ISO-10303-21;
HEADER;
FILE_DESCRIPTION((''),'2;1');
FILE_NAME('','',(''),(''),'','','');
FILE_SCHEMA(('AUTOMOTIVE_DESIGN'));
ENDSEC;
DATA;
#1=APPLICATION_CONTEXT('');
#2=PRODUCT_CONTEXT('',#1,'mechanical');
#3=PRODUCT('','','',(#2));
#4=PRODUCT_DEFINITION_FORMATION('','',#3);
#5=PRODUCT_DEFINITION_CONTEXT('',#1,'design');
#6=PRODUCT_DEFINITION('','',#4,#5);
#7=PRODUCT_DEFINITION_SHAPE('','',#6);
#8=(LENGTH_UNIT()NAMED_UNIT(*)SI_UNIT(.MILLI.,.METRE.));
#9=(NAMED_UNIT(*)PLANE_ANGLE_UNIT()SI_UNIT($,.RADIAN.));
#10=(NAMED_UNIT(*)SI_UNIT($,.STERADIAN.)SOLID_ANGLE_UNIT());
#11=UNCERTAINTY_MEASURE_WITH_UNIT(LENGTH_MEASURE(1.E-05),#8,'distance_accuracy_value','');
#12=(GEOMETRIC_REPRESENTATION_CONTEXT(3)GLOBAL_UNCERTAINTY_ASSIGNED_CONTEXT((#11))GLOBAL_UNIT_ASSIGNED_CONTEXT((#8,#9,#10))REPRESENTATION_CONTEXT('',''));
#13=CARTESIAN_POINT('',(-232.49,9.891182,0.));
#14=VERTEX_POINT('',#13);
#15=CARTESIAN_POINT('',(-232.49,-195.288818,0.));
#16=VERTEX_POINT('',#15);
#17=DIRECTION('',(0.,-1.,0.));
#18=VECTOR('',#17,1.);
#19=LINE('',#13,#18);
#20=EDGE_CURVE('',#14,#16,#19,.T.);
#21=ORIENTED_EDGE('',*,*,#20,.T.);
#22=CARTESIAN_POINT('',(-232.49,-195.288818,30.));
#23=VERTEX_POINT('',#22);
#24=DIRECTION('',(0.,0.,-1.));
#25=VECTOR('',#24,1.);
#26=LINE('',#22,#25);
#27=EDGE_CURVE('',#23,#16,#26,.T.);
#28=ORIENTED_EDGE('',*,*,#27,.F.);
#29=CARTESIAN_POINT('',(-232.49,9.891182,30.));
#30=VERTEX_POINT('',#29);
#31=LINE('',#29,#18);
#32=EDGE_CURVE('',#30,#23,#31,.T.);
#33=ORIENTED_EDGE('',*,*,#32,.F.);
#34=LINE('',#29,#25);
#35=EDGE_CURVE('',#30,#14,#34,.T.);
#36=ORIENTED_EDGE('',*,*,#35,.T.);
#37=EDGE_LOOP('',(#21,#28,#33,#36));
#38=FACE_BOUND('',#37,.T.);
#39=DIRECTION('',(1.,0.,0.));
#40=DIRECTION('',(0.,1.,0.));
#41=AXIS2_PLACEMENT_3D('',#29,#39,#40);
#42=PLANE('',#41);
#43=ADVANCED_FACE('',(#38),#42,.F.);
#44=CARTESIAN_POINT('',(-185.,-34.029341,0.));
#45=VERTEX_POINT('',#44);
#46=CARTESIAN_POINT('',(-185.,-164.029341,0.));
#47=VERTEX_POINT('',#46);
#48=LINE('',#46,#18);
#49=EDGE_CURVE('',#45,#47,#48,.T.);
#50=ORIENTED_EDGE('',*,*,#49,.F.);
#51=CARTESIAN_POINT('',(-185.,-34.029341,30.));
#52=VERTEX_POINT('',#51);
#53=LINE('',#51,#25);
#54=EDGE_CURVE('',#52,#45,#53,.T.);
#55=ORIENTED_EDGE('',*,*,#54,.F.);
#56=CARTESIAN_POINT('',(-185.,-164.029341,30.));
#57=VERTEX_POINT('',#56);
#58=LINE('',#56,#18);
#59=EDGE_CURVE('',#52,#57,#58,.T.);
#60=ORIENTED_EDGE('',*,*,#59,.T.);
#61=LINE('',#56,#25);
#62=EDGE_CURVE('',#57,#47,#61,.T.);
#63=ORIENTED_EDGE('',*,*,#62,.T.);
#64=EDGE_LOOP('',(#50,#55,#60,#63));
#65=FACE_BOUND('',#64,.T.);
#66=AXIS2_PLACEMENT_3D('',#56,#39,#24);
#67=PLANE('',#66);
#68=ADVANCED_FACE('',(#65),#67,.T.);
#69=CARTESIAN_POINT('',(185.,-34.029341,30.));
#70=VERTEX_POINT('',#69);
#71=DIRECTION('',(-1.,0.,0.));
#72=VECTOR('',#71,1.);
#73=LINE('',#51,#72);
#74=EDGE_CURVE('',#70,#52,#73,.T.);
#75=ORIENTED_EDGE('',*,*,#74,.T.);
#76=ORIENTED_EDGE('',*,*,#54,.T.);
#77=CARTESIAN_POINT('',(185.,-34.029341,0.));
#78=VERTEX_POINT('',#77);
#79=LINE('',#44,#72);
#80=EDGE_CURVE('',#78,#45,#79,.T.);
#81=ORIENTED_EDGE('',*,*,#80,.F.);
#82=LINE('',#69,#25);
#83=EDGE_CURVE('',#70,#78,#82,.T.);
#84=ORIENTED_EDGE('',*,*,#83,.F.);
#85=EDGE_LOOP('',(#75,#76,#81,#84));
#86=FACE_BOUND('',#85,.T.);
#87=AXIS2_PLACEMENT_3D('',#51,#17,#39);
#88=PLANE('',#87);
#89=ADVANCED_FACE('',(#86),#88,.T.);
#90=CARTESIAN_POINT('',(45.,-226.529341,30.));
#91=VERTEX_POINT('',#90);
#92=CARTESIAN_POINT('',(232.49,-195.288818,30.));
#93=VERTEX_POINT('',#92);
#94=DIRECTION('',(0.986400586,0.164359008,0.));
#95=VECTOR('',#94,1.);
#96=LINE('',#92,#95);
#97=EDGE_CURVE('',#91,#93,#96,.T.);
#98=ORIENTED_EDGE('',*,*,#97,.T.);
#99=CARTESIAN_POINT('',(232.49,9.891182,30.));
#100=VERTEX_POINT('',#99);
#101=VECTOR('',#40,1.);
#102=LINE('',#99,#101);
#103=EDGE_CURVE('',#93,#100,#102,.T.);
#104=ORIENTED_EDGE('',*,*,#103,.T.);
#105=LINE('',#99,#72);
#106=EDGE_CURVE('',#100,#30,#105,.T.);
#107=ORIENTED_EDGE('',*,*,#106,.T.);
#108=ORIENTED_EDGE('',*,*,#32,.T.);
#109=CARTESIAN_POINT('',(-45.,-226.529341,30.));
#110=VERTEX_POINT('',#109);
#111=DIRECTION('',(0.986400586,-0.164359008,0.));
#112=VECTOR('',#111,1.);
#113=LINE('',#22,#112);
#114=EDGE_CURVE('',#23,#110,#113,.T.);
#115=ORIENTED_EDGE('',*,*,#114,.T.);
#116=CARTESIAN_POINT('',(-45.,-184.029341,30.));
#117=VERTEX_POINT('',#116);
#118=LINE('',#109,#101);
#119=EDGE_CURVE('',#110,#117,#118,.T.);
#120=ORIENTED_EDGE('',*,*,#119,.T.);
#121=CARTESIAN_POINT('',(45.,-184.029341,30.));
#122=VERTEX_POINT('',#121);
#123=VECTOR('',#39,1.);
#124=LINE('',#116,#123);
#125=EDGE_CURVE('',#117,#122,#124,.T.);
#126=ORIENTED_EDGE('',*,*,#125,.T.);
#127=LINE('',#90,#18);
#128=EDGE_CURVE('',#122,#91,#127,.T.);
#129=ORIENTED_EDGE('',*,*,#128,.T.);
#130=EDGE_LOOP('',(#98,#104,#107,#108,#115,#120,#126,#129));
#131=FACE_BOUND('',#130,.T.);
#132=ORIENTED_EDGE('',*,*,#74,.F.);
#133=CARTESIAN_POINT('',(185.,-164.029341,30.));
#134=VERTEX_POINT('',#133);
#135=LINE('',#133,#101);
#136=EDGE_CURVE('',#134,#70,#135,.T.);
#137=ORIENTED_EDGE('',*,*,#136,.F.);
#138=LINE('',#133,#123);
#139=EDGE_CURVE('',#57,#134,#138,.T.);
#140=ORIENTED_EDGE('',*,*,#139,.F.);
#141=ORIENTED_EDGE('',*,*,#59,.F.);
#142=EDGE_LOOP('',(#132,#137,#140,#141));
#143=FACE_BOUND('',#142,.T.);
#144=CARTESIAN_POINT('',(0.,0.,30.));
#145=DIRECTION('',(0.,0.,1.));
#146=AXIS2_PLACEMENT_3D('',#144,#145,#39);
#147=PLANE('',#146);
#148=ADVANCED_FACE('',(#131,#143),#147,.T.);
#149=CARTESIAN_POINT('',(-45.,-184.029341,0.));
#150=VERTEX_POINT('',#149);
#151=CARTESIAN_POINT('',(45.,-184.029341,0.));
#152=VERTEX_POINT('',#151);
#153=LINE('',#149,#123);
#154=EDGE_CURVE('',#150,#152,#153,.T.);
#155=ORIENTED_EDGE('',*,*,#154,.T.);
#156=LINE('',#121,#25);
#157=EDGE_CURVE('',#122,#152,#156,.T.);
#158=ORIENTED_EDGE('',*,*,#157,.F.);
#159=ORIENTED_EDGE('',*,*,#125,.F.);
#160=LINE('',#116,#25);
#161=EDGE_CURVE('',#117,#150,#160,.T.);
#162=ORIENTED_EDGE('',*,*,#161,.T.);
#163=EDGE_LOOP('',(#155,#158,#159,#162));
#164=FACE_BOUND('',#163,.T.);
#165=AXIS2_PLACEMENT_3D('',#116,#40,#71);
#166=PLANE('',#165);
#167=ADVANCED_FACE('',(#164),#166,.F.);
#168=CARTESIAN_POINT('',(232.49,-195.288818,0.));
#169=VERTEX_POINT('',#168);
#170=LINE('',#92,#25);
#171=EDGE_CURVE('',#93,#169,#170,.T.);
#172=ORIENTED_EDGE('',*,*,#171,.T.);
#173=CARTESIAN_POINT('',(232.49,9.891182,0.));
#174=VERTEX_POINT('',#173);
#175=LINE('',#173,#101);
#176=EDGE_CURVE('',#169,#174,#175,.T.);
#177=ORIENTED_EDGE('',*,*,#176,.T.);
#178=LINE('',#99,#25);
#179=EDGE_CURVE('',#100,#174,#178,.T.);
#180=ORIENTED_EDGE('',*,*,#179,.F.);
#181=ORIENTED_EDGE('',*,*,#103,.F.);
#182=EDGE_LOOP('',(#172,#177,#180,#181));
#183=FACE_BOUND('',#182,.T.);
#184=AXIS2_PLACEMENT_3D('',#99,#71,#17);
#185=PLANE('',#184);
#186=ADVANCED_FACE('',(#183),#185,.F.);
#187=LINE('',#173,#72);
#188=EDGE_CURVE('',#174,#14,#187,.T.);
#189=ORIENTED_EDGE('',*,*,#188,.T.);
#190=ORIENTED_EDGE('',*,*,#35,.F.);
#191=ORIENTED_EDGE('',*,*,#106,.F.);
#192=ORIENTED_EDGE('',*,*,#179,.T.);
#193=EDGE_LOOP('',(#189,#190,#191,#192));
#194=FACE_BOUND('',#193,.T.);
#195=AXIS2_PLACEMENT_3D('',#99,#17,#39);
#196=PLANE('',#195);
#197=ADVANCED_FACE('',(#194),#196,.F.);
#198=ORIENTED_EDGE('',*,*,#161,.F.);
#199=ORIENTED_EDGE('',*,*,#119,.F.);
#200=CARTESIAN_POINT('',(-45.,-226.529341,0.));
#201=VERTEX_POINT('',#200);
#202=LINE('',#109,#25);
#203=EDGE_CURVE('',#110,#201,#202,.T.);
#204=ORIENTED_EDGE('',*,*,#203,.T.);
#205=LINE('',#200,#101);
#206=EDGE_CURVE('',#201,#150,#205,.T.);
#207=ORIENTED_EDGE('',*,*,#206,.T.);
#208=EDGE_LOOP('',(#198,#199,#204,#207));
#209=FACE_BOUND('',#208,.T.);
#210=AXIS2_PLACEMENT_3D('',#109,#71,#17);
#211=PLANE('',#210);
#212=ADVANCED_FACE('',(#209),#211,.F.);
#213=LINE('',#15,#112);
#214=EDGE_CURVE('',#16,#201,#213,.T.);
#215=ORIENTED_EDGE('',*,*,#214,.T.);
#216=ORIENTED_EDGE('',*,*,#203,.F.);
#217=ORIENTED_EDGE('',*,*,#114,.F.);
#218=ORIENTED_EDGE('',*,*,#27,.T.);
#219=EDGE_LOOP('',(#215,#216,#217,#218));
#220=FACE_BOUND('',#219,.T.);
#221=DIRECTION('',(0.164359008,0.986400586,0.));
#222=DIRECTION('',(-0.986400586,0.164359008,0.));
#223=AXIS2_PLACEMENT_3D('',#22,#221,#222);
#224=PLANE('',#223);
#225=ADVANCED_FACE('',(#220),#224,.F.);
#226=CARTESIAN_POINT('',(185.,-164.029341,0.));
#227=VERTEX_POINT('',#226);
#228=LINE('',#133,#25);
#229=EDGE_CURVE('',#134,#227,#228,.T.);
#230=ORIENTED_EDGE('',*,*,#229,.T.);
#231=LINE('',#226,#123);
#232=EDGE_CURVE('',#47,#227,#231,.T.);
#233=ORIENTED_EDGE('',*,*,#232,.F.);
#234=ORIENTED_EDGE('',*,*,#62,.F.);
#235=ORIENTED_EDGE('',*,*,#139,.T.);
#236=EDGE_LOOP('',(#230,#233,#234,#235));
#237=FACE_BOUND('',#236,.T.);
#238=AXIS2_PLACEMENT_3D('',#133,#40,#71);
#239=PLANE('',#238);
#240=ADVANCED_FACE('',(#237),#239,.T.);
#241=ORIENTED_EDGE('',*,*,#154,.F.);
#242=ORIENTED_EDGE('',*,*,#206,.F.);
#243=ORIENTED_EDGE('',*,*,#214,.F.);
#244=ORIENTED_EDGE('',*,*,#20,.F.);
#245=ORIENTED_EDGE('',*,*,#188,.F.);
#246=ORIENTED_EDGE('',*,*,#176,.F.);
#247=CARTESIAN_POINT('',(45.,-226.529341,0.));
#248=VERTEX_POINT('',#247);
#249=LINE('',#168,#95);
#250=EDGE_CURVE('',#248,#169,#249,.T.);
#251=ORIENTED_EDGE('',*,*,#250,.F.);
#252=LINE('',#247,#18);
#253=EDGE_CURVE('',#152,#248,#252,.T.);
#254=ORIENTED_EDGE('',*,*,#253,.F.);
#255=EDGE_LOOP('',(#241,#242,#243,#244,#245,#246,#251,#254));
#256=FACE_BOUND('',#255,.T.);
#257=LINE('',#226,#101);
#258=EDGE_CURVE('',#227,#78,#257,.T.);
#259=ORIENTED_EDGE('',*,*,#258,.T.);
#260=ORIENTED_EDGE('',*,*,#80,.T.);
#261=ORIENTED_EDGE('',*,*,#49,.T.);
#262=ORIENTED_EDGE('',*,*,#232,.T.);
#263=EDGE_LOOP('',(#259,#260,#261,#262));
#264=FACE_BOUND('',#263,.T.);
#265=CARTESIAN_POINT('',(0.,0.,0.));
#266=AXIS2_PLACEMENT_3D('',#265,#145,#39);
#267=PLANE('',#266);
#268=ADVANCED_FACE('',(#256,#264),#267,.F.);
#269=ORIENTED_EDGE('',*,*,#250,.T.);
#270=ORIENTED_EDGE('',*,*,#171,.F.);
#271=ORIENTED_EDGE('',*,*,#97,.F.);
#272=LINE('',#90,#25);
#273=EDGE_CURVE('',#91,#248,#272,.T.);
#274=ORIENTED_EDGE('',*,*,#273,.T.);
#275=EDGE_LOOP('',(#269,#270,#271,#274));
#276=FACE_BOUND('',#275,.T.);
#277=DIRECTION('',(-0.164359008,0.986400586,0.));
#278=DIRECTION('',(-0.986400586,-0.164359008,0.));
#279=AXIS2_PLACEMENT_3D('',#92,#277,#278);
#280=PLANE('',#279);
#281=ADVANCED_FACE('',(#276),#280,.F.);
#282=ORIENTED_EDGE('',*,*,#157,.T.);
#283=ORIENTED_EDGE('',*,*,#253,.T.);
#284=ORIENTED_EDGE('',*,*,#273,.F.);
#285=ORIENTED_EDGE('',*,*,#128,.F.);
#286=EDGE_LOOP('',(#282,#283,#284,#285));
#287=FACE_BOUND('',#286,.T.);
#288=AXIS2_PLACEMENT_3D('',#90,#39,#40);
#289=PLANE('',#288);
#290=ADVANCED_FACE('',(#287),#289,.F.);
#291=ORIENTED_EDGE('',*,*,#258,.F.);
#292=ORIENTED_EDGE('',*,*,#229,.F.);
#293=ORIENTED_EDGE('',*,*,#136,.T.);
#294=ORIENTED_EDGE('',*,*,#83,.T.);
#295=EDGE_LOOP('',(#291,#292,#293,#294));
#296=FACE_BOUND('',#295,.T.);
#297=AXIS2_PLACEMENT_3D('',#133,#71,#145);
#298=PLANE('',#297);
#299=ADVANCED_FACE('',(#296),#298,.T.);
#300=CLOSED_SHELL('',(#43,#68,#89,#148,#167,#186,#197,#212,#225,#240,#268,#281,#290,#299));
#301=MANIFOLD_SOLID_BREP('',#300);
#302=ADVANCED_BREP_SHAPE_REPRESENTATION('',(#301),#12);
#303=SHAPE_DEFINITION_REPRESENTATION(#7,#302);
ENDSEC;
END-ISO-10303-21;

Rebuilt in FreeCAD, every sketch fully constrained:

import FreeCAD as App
import Part
import Sketcher
from FreeCAD import Vector
Q = App.Units.Quantity

doc = App.newDocument("Part")
body = doc.addObject("PartDesign::Body", "Body")

# Sketch on XY plane
sketch1 = body.newObject("Sketcher::SketchObject", "Sketch")
sketch1.AttachmentSupport = (doc.getObject("XY_Plane"), [""])
sketch1.MapMode = "FlatFace"
sketch1.addGeometry([
    Part.LineSegment(Vector(232, 10, 0), Vector(-232, 10, 0)),  # 0
    Part.LineSegment(Vector(-232, 10, 0), Vector(-232, -195, 0)),  # 1
    Part.LineSegment(Vector(-232, -195, 0), Vector(-45, -227, 0)),  # 2
    Part.LineSegment(Vector(-45, -227, 0), Vector(-45, -184, 0)),  # 3
    Part.LineSegment(Vector(-45, -184, 0), Vector(45, -184, 0)),  # 4
    Part.LineSegment(Vector(45, -184, 0), Vector(45, -227, 0)),  # 5
    Part.LineSegment(Vector(45, -227, 0), Vector(232, -195, 0)),  # 6
    Part.LineSegment(Vector(232, -195, 0), Vector(232, 10, 0)),  # 7
    Part.LineSegment(Vector(185, -164, 0), Vector(-185, -164, 0)),  # 8
    Part.LineSegment(Vector(-185, -164, 0), Vector(-185, -34, 0)),  # 9
    Part.LineSegment(Vector(-185, -34, 0), Vector(185, -34, 0)),  # 10
    Part.LineSegment(Vector(185, -34, 0), Vector(185, -164, 0)),  # 11
], False)
sketch1.addConstraint([
    Sketcher.Constraint("Coincident", 0, 2, 1, 1),
    Sketcher.Constraint("Coincident", 1, 2, 2, 1),
    Sketcher.Constraint("Coincident", 2, 2, 3, 1),
    Sketcher.Constraint("Coincident", 3, 2, 4, 1),
    Sketcher.Constraint("Coincident", 4, 2, 5, 1),
    Sketcher.Constraint("Coincident", 5, 2, 6, 1),
    Sketcher.Constraint("Coincident", 6, 2, 7, 1),
    Sketcher.Constraint("Coincident", 7, 2, 0, 1),
    Sketcher.Constraint("Coincident", 8, 2, 9, 1),
    Sketcher.Constraint("Coincident", 9, 2, 10, 1),
    Sketcher.Constraint("Coincident", 10, 2, 11, 1),
    Sketcher.Constraint("Coincident", 11, 2, 8, 1),
    Sketcher.Constraint("Horizontal", 0),
    Sketcher.Constraint("Vertical", 1),
    Sketcher.Constraint("Vertical", 3),
    Sketcher.Constraint("Horizontal", 4),
    Sketcher.Constraint("Vertical", 5),
    Sketcher.Constraint("Vertical", 7),
    Sketcher.Constraint("Horizontal", 8),
    Sketcher.Constraint("Vertical", 9),
    Sketcher.Constraint("Horizontal", 10),
    Sketcher.Constraint("Vertical", 11),
    Sketcher.Constraint("Symmetric", 2, 2, 5, 2, -2),
    Sketcher.Constraint("Symmetric", 1, 2, 6, 2, -2),
    Sketcher.Constraint("DistanceX", 4, 1, 4, 2, 90.0),
    Sketcher.Constraint("DistanceX", 8, 2, 8, 1, 370.0),
    Sketcher.Constraint("DistanceY", 9, 1, 9, 2, 130.0),
    Sketcher.Constraint("DistanceY", 3, 1, 3, 2, 42.5),
    Sketcher.Constraint("DistanceX", 8, 2, -1, 1, 185.0),
    Sketcher.Constraint("DistanceY", 3, 2, 8, 2, 20.0),
    Sketcher.Constraint("DistanceX", 0, 2, 0, 1, 464.98),
    Sketcher.Constraint("DistanceY", 1, 2, 1, 1, 205.18),
    Sketcher.Constraint("Angle", 2, Q("-9.46 deg")),
    Sketcher.Constraint("DistanceY", -1, 1, 0, 2, 9.891182),
])
pad1 = body.newObject("PartDesign::Pad", "Pad")
pad1.Profile = sketch1
pad1.Length = 30

doc.recompute()
